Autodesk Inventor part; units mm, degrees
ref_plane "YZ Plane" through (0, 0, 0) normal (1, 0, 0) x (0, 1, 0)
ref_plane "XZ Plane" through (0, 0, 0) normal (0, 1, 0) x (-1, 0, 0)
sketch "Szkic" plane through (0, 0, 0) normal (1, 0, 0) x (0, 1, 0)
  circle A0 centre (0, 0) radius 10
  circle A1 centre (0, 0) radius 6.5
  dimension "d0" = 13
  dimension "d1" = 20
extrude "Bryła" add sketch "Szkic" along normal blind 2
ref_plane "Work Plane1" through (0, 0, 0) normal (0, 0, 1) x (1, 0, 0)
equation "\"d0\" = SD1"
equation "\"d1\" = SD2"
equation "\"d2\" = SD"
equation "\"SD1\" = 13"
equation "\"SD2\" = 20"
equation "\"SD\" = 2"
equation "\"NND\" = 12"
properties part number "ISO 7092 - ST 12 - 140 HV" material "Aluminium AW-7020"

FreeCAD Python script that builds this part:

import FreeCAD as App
import Part
import Sketcher

V = App.Vector

doc = App.newDocument("Part")
params = doc.addObject("Spreadsheet::Sheet", "Params")
for row, (alias, value) in enumerate([
    ("sketch1_diameter", "20 mm"),
    ("sketch1_diameter2", "13 mm"),
    ("pad1_length", "2 mm"),
], start=1):
    params.set(f"A{row}", alias)
    params.set(f"B{row}", "=" + value)
    params.setAlias(f"B{row}", alias)

body = doc.addObject("PartDesign::Body", "Body")

sketch1 = body.newObject("Sketcher::SketchObject", "Sketch")
sketch1.AttachmentSupport = (doc.getObject("YZ_Plane"), [""])
sketch1.MapMode = "FlatFace"
sketch1.addGeometry([
    Part.Circle(V(0, 0, 0), V(0, 0, 1), 10),
    Part.Circle(V(0, 0, 0), V(0, 0, 1), 6),
], False)
sketch1.addConstraint([
    Sketcher.Constraint("Coincident", 0, 3, -1, 1),
    Sketcher.Constraint("Coincident", 1, 3, -1, 1),
    Sketcher.Constraint("Diameter", 0, 20.0),
    Sketcher.Constraint("Diameter", 1, 13.0),
])
sketch1.setExpression("Constraints[2]", "Params.sketch1_diameter")
sketch1.setExpression("Constraints[3]", "Params.sketch1_diameter2")
pad1 = body.newObject("PartDesign::Pad", "Pad")
pad1.Profile = sketch1
pad1.setExpression("Length", "Params.pad1_length")

doc.recompute()
